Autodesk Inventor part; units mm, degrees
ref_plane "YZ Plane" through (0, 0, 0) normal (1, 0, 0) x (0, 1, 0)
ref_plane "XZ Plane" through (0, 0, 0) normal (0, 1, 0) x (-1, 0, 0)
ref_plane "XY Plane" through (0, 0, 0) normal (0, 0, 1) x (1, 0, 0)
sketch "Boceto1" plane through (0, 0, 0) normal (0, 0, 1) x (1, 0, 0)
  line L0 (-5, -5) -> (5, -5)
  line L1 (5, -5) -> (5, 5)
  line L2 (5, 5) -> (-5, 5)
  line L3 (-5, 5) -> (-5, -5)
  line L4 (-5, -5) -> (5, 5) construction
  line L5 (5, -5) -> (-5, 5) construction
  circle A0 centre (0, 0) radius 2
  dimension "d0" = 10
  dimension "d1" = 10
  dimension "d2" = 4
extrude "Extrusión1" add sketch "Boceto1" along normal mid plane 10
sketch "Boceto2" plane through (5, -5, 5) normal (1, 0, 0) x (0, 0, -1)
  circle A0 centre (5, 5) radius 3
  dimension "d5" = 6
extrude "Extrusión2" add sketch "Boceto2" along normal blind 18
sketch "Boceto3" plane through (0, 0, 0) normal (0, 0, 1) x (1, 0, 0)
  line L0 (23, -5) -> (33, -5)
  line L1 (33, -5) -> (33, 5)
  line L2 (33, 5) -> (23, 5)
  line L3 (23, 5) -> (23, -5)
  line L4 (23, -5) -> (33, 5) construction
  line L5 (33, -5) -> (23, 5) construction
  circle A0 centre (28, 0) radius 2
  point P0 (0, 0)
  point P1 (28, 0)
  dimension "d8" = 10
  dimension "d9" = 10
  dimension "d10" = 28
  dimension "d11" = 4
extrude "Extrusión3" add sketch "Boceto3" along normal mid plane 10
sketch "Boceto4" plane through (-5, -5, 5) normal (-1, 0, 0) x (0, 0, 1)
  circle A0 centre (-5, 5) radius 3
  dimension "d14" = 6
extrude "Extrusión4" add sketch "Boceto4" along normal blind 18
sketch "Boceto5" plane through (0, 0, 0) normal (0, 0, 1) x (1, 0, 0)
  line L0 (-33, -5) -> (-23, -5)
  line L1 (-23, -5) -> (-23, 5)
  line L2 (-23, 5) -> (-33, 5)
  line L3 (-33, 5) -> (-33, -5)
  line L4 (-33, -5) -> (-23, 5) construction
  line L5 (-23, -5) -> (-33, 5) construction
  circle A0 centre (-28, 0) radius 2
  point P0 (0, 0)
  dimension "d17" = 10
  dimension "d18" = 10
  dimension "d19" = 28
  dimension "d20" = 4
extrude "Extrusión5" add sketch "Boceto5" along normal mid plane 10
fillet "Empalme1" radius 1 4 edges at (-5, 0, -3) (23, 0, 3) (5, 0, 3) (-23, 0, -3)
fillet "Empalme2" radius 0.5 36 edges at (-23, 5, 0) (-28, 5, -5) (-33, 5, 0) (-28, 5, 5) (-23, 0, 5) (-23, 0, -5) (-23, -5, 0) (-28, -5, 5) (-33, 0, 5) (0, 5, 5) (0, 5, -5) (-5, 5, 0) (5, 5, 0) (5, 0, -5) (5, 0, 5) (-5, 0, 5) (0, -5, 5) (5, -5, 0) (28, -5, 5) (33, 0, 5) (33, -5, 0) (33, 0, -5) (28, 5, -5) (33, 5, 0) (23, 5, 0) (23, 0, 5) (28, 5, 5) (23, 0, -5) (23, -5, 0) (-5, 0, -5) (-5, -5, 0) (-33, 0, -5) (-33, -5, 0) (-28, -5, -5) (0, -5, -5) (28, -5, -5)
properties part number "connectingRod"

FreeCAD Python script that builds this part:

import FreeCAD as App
import Part
import Sketcher


def edges_at(feature, points):
    """Names of the edges that pass closest to the given points."""
    edges = feature.Shape.Edges
    near = lambda p: min(range(len(edges)), key=lambda i: edges[i].distToShape(Part.Vertex(*p))[0])
    return sorted({f"Edge{near(p) + 1}" for p in points})


def add_polygon(sketch, points):
    """Adds a closed chain of lines whose ends are joined by coincident constraints."""
    first, n = sketch.GeometryCount, len(points)
    for a, b in zip(points, points[1:] + points[:1]):
        sketch.addGeometry(Part.LineSegment(App.Vector(*a, 0), App.Vector(*b, 0)), False)
    for i in range(n):
        sketch.addConstraint(Sketcher.Constraint("Coincident", first + i, 2, first + (i + 1) % n, 1))

doc = App.newDocument("Part")
body = doc.addObject("PartDesign::Body", "Body")

# Sketch on XY plane
sketch1 = body.newObject("Sketcher::SketchObject", "Sketch")
sketch1.AttachmentSupport = (doc.getObject("XY_Plane"), [""])
sketch1.MapMode = "FlatFace"
add_polygon(sketch1, [(-5, 5), (-5, -5), (5, -5), (5, 5)])  # lines 0-3
sketch1.addGeometry(Part.Circle(App.Vector(0, 0, 0), App.Vector(0, 0, 1), 2), False)  # 4
sketch1.addConstraint(Sketcher.Constraint("Vertical", 0))
sketch1.addConstraint(Sketcher.Constraint("Horizontal", 1))
sketch1.addConstraint(Sketcher.Constraint("Vertical", 2))
sketch1.addConstraint(Sketcher.Constraint("Horizontal", 3))
sketch1.addConstraint(Sketcher.Constraint("Coincident", 4, 3, -1, 1))
sketch1.addConstraint(Sketcher.Constraint("Symmetric", 0, 2, 2, 2, -1, 1))
sketch1.addConstraint(Sketcher.Constraint("Equal", 3, 0))
sketch1.addConstraint(Sketcher.Constraint("Diameter", 4, 4.0))
sketch1.addConstraint(Sketcher.Constraint("DistanceX", 1, 1, 1, 2, 10.0))
pad1 = body.newObject("PartDesign::Pad", "Pad")
pad1.Profile = sketch1
pad1.Length = 10
pad1.Midplane = True

# Sketch on YZ plane
sketch2 = body.newObject("Sketcher::SketchObject", "Sketch001")
sketch2.AttachmentSupport = (doc.getObject("YZ_Plane"), [""])
sketch2.MapMode = "FlatFace"
sketch2.AttachmentOffset = App.Placement(App.Vector(0, 0, 5), App.Rotation())
sketch2.addGeometry(Part.Circle(App.Vector(0, 0, 0), App.Vector(0, 0, 1), 3), False)
sketch2.addConstraint(Sketcher.Constraint("Coincident", 0, 3, -1, 1))
sketch2.addConstraint(Sketcher.Constraint("Diameter", 0, 6.0))
pad2 = body.newObject("PartDesign::Pad", "Pad001")
pad2.Profile = sketch2
pad2.Length = 18

# Sketch on XY plane
sketch3 = body.newObject("Sketcher::SketchObject", "Sketch002")
sketch3.AttachmentSupport = (doc.getObject("XY_Plane"), [""])
sketch3.MapMode = "FlatFace"
add_polygon(sketch3, [(23, 5), (23, -5), (33, -5), (33, 5)])  # lines 0-3
sketch3.addGeometry(Part.Circle(App.Vector(28, 0, 0), App.Vector(0, 0, 1), 2), False)  # 4
sketch3.addConstraint(Sketcher.Constraint("Vertical", 0))
sketch3.addConstraint(Sketcher.Constraint("Horizontal", 1))
sketch3.addConstraint(Sketcher.Constraint("Vertical", 2))
sketch3.addConstraint(Sketcher.Constraint("Horizontal", 3))
sketch3.addConstraint(Sketcher.Constraint("PointOnObject", 4, 3, -1))
sketch3.addConstraint(Sketcher.Constraint("Equal", 3, 0))
sketch3.addConstraint(Sketcher.Constraint("Diameter", 4, 4.0))
sketch3.addConstraint(Sketcher.Constraint("DistanceX", 1, 1, 1, 2, 10.0))
sketch3.addConstraint(Sketcher.Constraint("DistanceX", -1, 1, 4, 3, 28.0))
sketch3.addConstraint(Sketcher.Constraint("DistanceX", -1, 1, 0, 2, 23.0))
sketch3.addConstraint(Sketcher.Constraint("DistanceY", 0, 2, -1, 1, 5.0))
pad3 = body.newObject("PartDesign::Pad", "Pad002")
pad3.Profile = sketch3
pad3.Length = 10
pad3.Midplane = True

# Sketch on YZ plane
sketch4 = body.newObject("Sketcher::SketchObject", "Sketch003")
sketch4.AttachmentSupport = (doc.getObject("YZ_Plane"), [""])
sketch4.MapMode = "FlatFace"
sketch4.AttachmentOffset = App.Placement(App.Vector(0, 0, -5), App.Rotation())
sketch4.addGeometry(Part.Circle(App.Vector(0, 0, 0), App.Vector(0, 0, 1), 3), False)
sketch4.addConstraint(Sketcher.Constraint("Coincident", 0, 3, -1, 1))
sketch4.addConstraint(Sketcher.Constraint("Diameter", 0, 6.0))
pad4 = body.newObject("PartDesign::Pad", "Pad003")
pad4.Profile = sketch4
pad4.Length = 18
pad4.Reversed = True

# Sketch on XY plane
sketch5 = body.newObject("Sketcher::SketchObject", "Sketch004")
sketch5.AttachmentSupport = (doc.getObject("XY_Plane"), [""])
sketch5.MapMode = "FlatFace"
add_polygon(sketch5, [(-33, 5), (-33, -5), (-23, -5), (-23, 5)])  # lines 0-3
sketch5.addGeometry(Part.Circle(App.Vector(-28, 0, 0), App.Vector(0, 0, 1), 2), False)  # 4
sketch5.addConstraint(Sketcher.Constraint("Vertical", 0))
sketch5.addConstraint(Sketcher.Constraint("Horizontal", 1))
sketch5.addConstraint(Sketcher.Constraint("Vertical", 2))
sketch5.addConstraint(Sketcher.Constraint("Horizontal", 3))
sketch5.addConstraint(Sketcher.Constraint("PointOnObject", 4, 3, -1))
sketch5.addConstraint(Sketcher.Constraint("Equal", 3, 0))
sketch5.addConstraint(Sketcher.Constraint("Diameter", 4, 4.0))
sketch5.addConstraint(Sketcher.Constraint("DistanceX", 1, 1, 1, 2, 10.0))
sketch5.addConstraint(Sketcher.Constraint("DistanceX", 4, 3, -1, 1, 28.0))
sketch5.addConstraint(Sketcher.Constraint("DistanceX", 0, 2, -1, 1, 33.0))
sketch5.addConstraint(Sketcher.Constraint("DistanceY", 0, 2, -1, 1, 5.0))
pad5 = body.newObject("PartDesign::Pad", "Pad004")
pad5.Profile = sketch5
pad5.Length = 10
pad5.Midplane = True
doc.recompute()

fillet = body.newObject("PartDesign::Fillet", "Fillet")
fillet.Base = (pad5, edges_at(pad5, [
    (-5, 0, -3),
    (23, 0, 3),
    (5, 0, 3),
    (-23, 0, -3),
]))
fillet.Radius = 1
doc.recompute()

fillet2 = body.newObject("PartDesign::Fillet", "Fillet001")
fillet2.Base = (fillet, edges_at(fillet, [
    (-23, 5, 0),
    (-28, 5, -5),
    (-33, 5, 0),
    (-28, 5, 5),
    (-23, 0, 5),
    (-23, 0, -5),
    (-23, -5, 0),
    (-28, -5, 5),
    (-33, 0, 5),
    (0, 5, 5),
    (0, 5, -5),
    (-5, 5, 0),
    (5, 5, 0),
    (5, 0, -5),
    (5, 0, 5),
    (-5, 0, 5),
    (0, -5, 5),
    (5, -5, 0),
    (28, -5, 5),
    (33, 0, 5),
    (33, -5, 0),
    (33, 0, -5),
    (28, 5, -5),
    (33, 5, 0),
    (23, 5, 0),
    (23, 0, 5),
    (28, 5, 5),
    (23, 0, -5),
    (23, -5, 0),
    (-5, 0, -5),
    (-5, -5, 0),
    (-33, 0, -5),
    (-33, -5, 0),
    (-28, -5, -5),
    (0, -5, -5),
    (28, -5, -5),
]))
fillet2.Radius = 0.5

doc.recompute()
